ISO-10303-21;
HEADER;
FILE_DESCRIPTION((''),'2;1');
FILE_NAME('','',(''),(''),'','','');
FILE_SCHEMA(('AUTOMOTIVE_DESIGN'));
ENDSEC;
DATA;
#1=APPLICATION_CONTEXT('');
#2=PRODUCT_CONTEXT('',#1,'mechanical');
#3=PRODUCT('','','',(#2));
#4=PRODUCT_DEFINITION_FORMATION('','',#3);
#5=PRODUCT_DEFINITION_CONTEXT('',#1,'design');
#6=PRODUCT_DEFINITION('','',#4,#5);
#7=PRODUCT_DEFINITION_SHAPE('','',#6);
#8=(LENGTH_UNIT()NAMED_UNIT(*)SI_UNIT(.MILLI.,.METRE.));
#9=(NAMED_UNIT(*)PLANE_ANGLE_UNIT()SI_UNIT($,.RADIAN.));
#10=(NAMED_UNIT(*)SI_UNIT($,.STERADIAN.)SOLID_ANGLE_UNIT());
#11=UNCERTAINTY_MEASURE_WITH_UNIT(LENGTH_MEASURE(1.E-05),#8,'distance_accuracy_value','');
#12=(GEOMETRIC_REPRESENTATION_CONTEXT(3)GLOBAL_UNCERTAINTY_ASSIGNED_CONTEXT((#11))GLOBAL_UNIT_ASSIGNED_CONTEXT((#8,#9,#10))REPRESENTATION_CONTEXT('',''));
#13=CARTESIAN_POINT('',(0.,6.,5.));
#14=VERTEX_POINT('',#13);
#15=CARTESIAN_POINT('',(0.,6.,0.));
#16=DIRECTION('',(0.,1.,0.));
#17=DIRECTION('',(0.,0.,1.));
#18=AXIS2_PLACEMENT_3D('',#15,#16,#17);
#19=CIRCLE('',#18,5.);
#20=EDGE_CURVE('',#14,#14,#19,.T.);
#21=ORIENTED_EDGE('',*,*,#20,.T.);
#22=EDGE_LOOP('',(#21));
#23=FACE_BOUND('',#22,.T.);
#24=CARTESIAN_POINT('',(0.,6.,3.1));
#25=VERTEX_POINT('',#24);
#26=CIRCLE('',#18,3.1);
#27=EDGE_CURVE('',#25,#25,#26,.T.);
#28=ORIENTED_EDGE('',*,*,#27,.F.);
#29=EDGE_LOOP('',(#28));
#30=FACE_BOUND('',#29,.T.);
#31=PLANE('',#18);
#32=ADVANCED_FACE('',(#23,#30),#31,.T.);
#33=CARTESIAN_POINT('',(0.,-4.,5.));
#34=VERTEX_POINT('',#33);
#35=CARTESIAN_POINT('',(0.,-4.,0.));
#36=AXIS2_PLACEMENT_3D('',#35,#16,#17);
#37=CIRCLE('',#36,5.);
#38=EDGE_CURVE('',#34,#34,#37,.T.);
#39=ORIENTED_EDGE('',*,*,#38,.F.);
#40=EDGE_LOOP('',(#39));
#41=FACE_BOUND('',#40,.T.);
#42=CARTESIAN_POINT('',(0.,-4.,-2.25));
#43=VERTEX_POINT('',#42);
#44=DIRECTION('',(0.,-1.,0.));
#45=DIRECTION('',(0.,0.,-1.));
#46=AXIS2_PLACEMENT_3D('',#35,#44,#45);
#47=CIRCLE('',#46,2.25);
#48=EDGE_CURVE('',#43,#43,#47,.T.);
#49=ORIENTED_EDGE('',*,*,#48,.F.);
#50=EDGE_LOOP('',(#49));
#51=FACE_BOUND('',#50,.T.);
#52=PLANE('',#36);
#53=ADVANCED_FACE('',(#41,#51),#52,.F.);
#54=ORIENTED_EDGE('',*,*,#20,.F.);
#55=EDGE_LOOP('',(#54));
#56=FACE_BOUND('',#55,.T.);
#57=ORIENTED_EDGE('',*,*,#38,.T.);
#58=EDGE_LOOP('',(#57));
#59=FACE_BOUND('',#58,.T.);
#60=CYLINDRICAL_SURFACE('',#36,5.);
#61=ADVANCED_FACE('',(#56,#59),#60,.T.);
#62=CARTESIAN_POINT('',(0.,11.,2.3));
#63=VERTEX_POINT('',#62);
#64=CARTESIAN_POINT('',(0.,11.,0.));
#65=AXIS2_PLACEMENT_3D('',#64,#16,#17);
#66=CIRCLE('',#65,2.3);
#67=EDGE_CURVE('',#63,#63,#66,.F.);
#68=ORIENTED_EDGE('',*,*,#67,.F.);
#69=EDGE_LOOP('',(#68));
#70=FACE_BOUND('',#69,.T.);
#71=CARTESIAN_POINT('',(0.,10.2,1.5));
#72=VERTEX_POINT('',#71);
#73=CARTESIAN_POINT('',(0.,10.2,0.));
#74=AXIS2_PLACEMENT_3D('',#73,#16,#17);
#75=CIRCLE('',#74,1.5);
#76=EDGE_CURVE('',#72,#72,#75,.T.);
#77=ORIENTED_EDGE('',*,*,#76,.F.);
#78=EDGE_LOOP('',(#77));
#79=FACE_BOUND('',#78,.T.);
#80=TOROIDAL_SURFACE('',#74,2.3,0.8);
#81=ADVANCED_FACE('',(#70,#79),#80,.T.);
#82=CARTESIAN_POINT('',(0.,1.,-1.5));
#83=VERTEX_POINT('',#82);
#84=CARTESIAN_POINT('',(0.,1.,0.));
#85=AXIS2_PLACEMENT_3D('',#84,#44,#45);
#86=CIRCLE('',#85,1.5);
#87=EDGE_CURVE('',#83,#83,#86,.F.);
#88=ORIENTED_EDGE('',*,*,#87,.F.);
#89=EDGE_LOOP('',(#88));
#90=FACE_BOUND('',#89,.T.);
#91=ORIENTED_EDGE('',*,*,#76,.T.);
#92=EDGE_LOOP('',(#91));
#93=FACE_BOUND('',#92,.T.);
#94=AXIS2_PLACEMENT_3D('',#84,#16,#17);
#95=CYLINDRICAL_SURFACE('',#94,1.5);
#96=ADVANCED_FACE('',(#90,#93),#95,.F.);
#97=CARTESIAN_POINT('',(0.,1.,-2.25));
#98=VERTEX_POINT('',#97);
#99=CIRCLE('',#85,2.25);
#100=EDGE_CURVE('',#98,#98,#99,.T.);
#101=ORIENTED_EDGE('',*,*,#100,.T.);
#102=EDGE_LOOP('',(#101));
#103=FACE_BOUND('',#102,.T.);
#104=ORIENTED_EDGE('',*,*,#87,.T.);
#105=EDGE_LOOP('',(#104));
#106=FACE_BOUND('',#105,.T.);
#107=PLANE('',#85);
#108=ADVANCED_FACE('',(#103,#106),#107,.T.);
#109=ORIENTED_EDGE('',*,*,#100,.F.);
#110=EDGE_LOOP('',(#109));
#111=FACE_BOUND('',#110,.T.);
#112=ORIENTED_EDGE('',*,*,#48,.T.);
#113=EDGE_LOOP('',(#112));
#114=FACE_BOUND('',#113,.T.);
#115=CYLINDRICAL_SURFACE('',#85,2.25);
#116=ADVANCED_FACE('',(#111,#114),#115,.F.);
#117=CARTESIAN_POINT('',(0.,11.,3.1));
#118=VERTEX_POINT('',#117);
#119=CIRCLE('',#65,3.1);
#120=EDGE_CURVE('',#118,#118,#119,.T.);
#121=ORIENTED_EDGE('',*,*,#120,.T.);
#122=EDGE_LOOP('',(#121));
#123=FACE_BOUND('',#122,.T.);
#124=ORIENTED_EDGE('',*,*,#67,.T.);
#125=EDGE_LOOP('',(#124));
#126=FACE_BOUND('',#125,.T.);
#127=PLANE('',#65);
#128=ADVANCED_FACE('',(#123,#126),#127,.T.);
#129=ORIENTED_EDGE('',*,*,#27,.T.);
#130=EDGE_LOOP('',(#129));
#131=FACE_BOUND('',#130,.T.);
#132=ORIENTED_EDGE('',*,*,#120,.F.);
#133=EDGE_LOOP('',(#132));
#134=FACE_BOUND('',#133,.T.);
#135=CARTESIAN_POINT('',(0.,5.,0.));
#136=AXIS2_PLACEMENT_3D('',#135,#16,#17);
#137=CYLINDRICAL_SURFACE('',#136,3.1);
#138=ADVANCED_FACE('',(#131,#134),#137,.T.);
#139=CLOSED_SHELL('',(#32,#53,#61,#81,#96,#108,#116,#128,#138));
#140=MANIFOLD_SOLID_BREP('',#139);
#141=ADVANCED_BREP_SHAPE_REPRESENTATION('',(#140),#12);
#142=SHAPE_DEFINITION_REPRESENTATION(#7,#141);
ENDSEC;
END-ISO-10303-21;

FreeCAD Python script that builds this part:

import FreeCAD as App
import Part
import Sketcher


def edges_at(feature, points):
    """Names of the edges that pass closest to the given points."""
    edges = feature.Shape.Edges
    near = lambda p: min(range(len(edges)), key=lambda i: edges[i].distToShape(Part.Vertex(*p))[0])
    return sorted({f"Edge{near(p) + 1}" for p in points})

doc = App.newDocument("Part")
params = doc.addObject("Spreadsheet::Sheet", "Params")
for row, (alias, value) in enumerate([
    ("sketch1_diameter", "10 mm"),
    ("pad1_length", "6 mm"),
    ("pad1_length2", "4 mm"),
    ("sketch2_diameter", "6.2 mm"),
    ("pad2_length", "5 mm"),
    ("pad2_length2", "1 mm"),
    ("sketch3_diameter", "3 mm"),
    ("pocket1_length", "10 mm"),
    ("sketch4_diameter", "4.5 mm"),
    ("pocket2_length", "5 mm"),
    ("fillet_radius", "0.8 mm"),
], start=1):
    params.set(f"A{row}", alias)
    params.set(f"B{row}", "=" + value)
    params.setAlias(f"B{row}", alias)

body = doc.addObject("PartDesign::Body", "Body")

# Sketch on XZ plane
sketch1 = body.newObject("Sketcher::SketchObject", "Sketch")
sketch1.AttachmentSupport = (doc.getObject("XZ_Plane"), [""])
sketch1.MapMode = "FlatFace"
sketch1.addGeometry(Part.Circle(App.Vector(0, 0, 0), App.Vector(0, 0, 1), 5), False)
sketch1.addConstraint(Sketcher.Constraint("Coincident", 0, 3, -1, 1))
sketch1.addConstraint(Sketcher.Constraint("Diameter", 0, 10.0))
sketch1.setExpression("Constraints[1]", "Params.sketch1_diameter")
pad1 = body.newObject("PartDesign::Pad", "Pad")
pad1.Profile = sketch1
pad1.Type = "TwoLengths"
pad1.setExpression("Length", "Params.pad1_length")
pad1.setExpression("Length2", "Params.pad1_length2")
pad1.Reversed = True

# Sketch on XZ plane
sketch2 = body.newObject("Sketcher::SketchObject", "Sketch001")
sketch2.AttachmentSupport = (doc.getObject("XZ_Plane"), [""])
sketch2.MapMode = "FlatFace"
sketch2.AttachmentOffset = App.Placement(App.Vector(0, 0, -6), App.Rotation())
sketch2.addGeometry(Part.Circle(App.Vector(0, 0, 0), App.Vector(0, 0, 1), 3.1), False)
sketch2.addConstraint(Sketcher.Constraint("Coincident", 0, 3, -1, 1))
sketch2.addConstraint(Sketcher.Constraint("Diameter", 0, 6.2))
sketch2.setExpression("Constraints[1]", "Params.sketch2_diameter")
pad2 = body.newObject("PartDesign::Pad", "Pad001")
pad2.Profile = sketch2
pad2.Type = "TwoLengths"
pad2.setExpression("Length", "Params.pad2_length")
pad2.setExpression("Length2", "Params.pad2_length2")
pad2.Reversed = True

# Sketch on XZ plane
sketch3 = body.newObject("Sketcher::SketchObject", "Sketch002")
sketch3.AttachmentSupport = (doc.getObject("XZ_Plane"), [""])
sketch3.MapMode = "FlatFace"
sketch3.AttachmentOffset = App.Placement(App.Vector(0, 0, -11), App.Rotation())
sketch3.addGeometry(Part.Circle(App.Vector(0, 0, 0), App.Vector(0, 0, 1), 1.5), False)
sketch3.addConstraint(Sketcher.Constraint("Coincident", 0, 3, -1, 1))
sketch3.addConstraint(Sketcher.Constraint("Diameter", 0, 3.0))
sketch3.setExpression("Constraints[1]", "Params.sketch3_diameter")
pocket1 = body.newObject("PartDesign::Pocket", "Pocket")
pocket1.Profile = sketch3
pocket1.setExpression("Length", "Params.pocket1_length")
pocket1.Reversed = True

# Sketch on XZ plane
sketch4 = body.newObject("Sketcher::SketchObject", "Sketch003")
sketch4.AttachmentSupport = (doc.getObject("XZ_Plane"), [""])
sketch4.MapMode = "FlatFace"
sketch4.AttachmentOffset = App.Placement(App.Vector(0, 0, 4), App.Rotation())
sketch4.addGeometry(Part.Circle(App.Vector(0, 0, 0), App.Vector(0, 0, 1), 2.25), False)
sketch4.addConstraint(Sketcher.Constraint("Coincident", 0, 3, -1, 1))
sketch4.addConstraint(Sketcher.Constraint("Diameter", 0, 4.5))
sketch4.setExpression("Constraints[1]", "Params.sketch4_diameter")
pocket2 = body.newObject("PartDesign::Pocket", "Pocket001")
pocket2.Profile = sketch4
pocket2.setExpression("Length", "Params.pocket2_length")
doc.recompute()

fillet = body.newObject("PartDesign::Fillet", "Fillet")
fillet.Base = (pocket2, edges_at(pocket2, [(0, 11, -1.5)]))
fillet.setExpression("Radius", "Params.fillet_radius")

doc.recompute()
